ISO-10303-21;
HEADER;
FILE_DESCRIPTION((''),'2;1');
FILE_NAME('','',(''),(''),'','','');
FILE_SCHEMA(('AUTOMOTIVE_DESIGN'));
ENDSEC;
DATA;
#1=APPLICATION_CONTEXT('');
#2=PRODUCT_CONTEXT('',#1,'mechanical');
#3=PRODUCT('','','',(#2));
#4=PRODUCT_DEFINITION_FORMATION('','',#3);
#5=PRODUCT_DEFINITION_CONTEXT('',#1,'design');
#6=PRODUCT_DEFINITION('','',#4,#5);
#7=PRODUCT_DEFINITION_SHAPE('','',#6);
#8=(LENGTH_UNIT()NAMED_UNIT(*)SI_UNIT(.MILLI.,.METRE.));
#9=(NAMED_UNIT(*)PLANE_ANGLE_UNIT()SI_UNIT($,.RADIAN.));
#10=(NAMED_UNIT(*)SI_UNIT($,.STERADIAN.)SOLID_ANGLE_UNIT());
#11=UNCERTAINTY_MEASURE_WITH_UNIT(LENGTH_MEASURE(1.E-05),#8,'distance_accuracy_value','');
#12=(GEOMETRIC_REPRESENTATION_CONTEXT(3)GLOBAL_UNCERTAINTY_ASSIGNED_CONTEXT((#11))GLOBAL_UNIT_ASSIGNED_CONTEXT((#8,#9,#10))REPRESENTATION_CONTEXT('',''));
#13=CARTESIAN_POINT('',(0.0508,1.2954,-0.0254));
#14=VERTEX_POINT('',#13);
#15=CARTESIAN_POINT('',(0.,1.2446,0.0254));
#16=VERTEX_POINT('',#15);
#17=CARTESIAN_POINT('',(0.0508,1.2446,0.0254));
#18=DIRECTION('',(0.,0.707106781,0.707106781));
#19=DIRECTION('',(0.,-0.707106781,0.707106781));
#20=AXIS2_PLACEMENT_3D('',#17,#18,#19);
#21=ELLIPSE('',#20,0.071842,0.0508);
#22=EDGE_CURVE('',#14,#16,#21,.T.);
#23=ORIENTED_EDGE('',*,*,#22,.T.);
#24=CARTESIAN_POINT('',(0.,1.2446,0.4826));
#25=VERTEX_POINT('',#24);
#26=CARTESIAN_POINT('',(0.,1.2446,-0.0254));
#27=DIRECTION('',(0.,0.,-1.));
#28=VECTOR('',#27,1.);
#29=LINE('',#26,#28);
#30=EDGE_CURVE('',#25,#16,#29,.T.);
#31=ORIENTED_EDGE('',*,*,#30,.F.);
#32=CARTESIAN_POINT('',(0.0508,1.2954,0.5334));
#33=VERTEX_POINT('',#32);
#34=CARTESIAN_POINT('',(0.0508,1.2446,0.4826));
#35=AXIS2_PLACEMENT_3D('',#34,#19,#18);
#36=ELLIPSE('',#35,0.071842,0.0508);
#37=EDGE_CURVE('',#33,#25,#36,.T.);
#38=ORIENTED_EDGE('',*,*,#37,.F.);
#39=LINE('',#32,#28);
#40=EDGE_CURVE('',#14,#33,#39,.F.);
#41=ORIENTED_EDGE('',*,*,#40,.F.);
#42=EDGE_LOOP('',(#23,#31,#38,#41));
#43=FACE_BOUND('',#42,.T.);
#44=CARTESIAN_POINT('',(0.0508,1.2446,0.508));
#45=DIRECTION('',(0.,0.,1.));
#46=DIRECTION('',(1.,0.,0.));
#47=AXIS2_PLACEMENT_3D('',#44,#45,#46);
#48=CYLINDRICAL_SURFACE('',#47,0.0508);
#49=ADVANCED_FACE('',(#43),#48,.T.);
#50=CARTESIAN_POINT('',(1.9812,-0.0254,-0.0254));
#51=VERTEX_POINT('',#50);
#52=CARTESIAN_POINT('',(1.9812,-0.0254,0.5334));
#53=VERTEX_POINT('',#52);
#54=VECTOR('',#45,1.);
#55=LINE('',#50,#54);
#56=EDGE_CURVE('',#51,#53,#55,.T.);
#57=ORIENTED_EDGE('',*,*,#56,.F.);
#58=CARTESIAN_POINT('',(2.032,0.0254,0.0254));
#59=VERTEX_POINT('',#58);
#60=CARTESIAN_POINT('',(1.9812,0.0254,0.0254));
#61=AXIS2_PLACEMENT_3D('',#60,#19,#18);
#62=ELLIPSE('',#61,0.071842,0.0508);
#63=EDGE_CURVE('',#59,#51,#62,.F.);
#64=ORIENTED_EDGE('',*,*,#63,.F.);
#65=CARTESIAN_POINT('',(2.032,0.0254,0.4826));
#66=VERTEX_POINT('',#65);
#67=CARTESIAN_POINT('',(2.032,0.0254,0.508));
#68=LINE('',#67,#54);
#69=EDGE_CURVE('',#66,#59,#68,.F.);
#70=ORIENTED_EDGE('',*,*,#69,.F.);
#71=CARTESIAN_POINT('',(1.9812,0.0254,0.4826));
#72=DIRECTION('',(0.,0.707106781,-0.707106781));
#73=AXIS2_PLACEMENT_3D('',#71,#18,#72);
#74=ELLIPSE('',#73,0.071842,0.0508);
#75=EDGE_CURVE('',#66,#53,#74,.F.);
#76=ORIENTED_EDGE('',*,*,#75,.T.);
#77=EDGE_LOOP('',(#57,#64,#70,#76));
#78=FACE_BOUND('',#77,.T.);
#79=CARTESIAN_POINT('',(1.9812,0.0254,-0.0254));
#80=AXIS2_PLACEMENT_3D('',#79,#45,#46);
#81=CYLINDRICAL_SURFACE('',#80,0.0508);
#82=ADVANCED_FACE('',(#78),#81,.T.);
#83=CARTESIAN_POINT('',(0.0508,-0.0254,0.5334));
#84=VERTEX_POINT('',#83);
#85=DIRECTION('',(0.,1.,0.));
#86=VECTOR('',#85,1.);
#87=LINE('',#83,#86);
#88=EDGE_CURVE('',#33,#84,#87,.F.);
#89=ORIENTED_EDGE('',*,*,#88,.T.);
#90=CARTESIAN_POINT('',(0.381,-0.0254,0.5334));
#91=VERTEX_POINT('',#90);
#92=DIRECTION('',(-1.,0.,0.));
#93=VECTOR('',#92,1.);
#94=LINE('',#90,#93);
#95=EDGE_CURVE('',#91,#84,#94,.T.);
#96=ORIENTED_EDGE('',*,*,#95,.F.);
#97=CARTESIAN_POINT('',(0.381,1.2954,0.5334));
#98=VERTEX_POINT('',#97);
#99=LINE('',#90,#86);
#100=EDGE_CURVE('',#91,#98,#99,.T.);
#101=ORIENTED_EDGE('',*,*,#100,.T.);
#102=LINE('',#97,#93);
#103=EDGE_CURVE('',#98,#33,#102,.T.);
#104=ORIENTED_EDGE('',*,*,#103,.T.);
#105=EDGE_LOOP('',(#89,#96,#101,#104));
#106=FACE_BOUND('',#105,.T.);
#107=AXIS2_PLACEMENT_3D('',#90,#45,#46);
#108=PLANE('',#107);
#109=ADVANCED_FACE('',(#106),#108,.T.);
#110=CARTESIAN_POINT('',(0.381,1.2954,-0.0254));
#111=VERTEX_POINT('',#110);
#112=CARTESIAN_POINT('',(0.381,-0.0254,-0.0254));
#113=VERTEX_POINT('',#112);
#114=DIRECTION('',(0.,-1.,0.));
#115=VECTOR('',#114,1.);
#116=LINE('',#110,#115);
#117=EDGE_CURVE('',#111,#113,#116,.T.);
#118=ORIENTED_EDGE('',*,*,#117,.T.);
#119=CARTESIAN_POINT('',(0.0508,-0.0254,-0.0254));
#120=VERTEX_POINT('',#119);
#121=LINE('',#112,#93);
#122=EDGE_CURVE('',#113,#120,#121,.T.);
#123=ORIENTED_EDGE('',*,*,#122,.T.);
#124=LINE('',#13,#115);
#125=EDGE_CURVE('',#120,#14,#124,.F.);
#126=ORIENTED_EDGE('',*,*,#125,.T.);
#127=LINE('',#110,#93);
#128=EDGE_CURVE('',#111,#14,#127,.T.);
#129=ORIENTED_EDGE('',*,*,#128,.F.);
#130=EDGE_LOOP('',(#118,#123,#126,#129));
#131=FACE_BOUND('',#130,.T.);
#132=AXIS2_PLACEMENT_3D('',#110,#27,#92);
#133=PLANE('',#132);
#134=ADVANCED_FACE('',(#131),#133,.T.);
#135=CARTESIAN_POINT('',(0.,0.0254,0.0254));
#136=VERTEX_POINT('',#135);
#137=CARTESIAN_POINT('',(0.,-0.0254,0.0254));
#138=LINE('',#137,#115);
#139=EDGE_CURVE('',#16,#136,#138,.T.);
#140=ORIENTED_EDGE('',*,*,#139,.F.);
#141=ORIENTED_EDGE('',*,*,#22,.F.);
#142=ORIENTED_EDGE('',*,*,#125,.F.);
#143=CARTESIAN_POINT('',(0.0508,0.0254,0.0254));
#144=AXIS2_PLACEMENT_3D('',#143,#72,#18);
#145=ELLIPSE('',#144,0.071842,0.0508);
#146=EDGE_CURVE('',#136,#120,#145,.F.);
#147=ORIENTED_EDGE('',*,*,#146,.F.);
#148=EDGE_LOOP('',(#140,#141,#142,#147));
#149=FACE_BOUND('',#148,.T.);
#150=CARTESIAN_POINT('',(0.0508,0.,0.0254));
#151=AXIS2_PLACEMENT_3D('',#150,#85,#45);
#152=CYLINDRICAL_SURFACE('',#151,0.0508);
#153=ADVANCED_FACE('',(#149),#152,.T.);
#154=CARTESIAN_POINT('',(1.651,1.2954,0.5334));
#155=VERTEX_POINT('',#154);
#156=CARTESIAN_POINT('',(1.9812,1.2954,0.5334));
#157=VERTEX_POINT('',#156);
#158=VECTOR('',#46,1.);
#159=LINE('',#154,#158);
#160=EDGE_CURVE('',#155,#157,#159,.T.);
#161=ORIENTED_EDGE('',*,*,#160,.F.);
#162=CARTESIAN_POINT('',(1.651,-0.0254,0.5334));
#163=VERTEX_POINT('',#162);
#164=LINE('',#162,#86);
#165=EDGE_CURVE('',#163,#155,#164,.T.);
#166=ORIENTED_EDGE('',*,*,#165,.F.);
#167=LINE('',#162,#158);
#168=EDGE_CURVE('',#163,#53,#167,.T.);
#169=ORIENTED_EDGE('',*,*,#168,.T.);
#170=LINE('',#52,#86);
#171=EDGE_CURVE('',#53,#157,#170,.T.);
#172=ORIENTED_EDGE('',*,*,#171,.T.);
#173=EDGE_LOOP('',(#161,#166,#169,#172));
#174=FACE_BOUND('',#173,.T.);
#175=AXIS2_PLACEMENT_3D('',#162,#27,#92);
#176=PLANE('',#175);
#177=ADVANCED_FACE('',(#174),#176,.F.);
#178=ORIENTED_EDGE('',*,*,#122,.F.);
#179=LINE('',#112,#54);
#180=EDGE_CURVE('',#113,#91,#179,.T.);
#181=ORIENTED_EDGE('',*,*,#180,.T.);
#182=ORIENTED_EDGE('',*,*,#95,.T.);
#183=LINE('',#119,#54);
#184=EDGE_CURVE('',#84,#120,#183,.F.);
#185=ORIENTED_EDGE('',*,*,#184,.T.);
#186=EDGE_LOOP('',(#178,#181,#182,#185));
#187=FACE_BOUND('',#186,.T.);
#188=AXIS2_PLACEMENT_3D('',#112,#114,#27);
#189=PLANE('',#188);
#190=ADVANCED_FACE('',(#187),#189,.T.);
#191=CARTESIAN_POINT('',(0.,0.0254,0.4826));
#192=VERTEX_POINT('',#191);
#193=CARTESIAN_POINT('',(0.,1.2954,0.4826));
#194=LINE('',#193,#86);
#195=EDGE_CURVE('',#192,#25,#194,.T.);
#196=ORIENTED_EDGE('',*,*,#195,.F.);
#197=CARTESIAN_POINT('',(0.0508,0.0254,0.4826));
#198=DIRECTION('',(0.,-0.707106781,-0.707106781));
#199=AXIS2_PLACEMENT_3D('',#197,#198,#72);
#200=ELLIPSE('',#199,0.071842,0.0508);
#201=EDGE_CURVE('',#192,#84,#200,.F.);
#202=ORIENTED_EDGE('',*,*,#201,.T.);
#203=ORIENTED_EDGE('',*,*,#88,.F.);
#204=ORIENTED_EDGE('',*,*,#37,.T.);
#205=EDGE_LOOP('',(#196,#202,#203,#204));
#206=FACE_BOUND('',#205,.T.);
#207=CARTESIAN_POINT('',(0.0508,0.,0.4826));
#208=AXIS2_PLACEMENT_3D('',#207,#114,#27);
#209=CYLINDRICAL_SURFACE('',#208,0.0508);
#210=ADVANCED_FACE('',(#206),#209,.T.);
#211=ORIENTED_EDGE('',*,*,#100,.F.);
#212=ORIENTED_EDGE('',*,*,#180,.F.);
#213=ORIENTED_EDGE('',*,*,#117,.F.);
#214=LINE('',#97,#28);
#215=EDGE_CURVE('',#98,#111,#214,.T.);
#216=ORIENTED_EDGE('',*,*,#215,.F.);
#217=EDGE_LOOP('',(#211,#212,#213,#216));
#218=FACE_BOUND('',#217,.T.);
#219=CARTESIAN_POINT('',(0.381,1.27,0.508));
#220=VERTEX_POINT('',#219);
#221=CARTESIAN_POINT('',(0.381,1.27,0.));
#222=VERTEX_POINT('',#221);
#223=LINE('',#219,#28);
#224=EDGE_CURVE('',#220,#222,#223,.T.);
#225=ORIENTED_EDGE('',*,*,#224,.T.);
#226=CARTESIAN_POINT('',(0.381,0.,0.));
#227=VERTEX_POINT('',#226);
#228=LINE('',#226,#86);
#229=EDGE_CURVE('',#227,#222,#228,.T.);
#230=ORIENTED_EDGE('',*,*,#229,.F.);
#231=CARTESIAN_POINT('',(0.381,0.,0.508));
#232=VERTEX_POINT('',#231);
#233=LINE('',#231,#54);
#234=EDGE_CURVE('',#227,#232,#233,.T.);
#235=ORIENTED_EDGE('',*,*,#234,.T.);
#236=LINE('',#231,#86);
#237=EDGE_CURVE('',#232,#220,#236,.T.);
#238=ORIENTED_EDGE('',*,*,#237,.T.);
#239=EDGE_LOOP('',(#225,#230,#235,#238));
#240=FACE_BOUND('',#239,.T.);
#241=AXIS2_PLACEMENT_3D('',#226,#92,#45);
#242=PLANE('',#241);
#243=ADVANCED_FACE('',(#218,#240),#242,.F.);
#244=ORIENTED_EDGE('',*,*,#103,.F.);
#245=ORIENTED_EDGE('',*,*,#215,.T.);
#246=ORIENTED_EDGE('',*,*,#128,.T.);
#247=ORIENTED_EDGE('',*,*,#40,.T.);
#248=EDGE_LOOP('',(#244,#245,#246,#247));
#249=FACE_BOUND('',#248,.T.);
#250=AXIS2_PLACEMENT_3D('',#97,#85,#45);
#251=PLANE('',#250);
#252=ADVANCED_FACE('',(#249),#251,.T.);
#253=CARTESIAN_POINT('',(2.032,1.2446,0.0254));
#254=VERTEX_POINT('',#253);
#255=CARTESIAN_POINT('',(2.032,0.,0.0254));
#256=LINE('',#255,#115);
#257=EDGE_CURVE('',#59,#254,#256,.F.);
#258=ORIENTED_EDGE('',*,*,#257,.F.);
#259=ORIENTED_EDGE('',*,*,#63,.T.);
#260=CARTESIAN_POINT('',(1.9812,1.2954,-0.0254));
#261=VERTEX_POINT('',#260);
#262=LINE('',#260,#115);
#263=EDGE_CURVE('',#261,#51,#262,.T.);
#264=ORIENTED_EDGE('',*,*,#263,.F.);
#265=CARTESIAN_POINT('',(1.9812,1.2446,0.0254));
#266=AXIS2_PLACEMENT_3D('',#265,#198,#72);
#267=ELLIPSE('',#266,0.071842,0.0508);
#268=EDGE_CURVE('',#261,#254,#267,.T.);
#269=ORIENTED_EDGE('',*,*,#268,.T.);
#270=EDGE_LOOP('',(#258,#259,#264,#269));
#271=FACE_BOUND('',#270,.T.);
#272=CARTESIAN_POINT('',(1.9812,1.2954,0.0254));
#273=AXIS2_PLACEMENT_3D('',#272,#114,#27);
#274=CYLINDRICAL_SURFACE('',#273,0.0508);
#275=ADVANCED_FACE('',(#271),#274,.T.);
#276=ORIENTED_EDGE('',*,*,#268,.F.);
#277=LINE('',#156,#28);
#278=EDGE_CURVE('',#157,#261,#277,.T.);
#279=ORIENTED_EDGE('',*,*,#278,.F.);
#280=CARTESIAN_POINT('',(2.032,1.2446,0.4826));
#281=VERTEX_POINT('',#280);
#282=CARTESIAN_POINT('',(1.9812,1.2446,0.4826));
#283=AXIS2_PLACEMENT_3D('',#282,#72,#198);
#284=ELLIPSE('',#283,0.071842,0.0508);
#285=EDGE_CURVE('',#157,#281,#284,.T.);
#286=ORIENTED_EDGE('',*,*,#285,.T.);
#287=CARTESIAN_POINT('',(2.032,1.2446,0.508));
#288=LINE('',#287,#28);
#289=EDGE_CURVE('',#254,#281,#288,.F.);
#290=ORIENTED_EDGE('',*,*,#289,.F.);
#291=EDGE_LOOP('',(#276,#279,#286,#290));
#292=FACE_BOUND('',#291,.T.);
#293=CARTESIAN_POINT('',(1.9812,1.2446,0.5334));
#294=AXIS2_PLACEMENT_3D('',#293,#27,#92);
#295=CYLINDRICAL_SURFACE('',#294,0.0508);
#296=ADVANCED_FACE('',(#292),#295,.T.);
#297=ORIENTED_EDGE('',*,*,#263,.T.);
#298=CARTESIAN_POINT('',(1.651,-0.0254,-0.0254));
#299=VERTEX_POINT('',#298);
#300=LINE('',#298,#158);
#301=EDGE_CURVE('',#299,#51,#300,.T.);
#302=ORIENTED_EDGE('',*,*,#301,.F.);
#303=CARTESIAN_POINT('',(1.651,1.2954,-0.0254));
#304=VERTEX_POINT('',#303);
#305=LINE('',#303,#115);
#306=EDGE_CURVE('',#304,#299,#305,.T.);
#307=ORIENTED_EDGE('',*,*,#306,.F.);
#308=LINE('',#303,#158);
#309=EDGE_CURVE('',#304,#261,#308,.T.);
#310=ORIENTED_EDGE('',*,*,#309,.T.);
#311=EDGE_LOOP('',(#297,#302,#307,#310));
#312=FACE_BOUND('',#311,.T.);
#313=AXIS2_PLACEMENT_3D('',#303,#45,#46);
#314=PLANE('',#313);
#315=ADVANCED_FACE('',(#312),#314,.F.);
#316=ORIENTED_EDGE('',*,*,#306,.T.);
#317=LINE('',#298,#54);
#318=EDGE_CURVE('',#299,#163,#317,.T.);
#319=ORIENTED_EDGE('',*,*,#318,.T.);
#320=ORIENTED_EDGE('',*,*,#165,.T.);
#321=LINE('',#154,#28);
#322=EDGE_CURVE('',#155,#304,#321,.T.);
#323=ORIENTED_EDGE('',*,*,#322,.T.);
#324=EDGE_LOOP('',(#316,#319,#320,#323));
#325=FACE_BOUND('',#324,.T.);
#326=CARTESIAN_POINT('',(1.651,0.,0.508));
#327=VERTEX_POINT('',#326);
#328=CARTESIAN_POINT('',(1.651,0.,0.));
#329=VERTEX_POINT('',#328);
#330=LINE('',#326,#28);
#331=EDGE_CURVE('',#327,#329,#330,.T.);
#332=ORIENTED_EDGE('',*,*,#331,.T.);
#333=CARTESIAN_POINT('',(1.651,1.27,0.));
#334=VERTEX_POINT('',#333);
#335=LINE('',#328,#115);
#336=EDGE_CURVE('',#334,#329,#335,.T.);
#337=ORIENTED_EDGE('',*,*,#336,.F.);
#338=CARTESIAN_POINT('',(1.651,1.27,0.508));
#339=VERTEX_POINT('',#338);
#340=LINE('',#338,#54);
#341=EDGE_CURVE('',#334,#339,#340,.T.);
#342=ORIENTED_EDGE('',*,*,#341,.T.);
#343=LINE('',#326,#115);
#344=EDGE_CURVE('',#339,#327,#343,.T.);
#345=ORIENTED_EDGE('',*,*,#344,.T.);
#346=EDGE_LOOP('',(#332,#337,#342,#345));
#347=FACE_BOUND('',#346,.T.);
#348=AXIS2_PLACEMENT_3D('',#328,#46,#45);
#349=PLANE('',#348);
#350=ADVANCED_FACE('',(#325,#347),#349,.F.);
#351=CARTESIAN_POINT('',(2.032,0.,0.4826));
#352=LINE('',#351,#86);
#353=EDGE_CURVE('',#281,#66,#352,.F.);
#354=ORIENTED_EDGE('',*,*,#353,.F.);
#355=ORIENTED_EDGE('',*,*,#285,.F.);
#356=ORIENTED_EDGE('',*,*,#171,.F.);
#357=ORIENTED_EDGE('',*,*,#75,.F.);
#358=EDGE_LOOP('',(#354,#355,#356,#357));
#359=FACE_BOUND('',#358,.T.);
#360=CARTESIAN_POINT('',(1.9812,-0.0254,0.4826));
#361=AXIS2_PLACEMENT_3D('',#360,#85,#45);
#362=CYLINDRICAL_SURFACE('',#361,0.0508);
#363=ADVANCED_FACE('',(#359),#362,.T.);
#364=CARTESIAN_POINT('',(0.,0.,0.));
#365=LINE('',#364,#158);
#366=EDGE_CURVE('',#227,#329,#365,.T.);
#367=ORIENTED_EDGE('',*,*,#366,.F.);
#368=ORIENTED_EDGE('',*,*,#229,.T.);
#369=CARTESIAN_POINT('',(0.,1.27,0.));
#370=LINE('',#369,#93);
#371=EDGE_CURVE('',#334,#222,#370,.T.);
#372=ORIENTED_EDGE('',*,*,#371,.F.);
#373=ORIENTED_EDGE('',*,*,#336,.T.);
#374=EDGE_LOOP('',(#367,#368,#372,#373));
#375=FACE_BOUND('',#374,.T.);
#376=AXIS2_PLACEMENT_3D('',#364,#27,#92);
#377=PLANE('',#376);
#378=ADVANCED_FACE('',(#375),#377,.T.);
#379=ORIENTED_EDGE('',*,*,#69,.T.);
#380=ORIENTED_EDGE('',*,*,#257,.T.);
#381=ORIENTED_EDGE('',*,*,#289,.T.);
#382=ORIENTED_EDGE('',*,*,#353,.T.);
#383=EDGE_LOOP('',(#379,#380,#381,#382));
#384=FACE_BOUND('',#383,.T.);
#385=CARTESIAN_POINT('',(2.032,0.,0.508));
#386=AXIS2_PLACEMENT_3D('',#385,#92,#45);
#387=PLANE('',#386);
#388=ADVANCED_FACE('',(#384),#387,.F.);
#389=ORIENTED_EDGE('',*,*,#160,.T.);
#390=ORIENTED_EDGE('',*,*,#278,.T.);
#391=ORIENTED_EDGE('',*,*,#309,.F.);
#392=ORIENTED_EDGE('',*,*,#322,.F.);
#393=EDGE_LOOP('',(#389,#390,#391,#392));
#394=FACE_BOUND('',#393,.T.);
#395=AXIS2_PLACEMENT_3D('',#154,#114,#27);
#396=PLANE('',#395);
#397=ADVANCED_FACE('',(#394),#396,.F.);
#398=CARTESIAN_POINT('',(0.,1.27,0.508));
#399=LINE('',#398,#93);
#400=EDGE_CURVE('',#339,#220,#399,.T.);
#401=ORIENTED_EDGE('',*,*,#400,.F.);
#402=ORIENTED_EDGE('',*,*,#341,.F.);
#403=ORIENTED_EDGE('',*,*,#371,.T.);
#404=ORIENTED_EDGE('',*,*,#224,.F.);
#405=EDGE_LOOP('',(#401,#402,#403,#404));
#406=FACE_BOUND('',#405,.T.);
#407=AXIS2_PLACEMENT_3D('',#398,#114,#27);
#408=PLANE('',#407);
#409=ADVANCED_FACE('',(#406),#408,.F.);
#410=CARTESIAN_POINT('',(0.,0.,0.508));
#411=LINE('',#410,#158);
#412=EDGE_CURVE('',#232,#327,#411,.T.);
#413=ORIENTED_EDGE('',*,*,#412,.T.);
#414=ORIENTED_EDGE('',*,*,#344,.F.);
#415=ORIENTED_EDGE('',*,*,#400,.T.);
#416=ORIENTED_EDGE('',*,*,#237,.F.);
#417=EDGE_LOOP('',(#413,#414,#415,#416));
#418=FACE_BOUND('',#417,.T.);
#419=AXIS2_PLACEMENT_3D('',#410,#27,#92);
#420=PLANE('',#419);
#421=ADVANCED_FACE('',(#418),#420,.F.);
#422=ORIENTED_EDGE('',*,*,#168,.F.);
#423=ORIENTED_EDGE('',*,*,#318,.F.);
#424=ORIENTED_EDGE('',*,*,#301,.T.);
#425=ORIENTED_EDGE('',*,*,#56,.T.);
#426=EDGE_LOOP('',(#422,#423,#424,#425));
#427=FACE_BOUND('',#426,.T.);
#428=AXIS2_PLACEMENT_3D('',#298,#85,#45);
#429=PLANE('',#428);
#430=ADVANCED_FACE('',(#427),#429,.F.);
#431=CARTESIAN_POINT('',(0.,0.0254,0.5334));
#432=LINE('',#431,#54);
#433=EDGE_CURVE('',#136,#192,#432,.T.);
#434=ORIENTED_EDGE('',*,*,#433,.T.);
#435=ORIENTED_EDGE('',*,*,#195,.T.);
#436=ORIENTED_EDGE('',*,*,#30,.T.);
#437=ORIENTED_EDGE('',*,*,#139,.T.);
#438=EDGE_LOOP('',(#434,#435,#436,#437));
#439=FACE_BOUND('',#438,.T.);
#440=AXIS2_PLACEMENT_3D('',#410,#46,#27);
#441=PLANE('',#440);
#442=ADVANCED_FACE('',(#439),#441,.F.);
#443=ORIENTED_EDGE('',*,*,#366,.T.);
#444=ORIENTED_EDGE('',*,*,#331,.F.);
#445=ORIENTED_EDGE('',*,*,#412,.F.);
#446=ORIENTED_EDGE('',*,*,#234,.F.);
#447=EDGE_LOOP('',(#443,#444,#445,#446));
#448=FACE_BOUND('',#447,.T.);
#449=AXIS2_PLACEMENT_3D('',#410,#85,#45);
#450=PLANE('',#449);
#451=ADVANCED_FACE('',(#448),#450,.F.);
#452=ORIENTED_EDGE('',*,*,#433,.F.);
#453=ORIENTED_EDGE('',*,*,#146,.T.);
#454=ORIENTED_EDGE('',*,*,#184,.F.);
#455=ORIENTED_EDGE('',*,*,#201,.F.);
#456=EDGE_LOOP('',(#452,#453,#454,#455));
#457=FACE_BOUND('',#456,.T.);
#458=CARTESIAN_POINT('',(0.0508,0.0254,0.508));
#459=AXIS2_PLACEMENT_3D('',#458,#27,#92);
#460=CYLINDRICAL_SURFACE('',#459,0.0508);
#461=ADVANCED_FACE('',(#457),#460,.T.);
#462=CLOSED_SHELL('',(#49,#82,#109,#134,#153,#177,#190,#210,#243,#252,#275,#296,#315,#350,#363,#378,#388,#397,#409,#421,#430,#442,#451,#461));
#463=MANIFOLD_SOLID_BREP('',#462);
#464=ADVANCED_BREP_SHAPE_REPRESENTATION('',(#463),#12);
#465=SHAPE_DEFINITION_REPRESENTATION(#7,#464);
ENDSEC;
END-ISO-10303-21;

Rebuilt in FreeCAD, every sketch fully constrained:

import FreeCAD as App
import Part
import Sketcher
Q = App.Units.Quantity


def edges_at(feature, points):
    """Names of the edges that pass closest to the given points."""
    edges = feature.Shape.Edges
    near = lambda p: min(range(len(edges)), key=lambda i: edges[i].distToShape(Part.Vertex(*p))[0])
    return sorted({f"Edge{near(p) + 1}" for p in points})


def add_polygon(sketch, points):
    """Adds a closed chain of lines whose ends are joined by coincident constraints."""
    first, n = sketch.GeometryCount, len(points)
    for a, b in zip(points, points[1:] + points[:1]):
        sketch.addGeometry(Part.LineSegment(App.Vector(*a, 0), App.Vector(*b, 0)), False)
    for i in range(n):
        sketch.addConstraint(Sketcher.Constraint("Coincident", first + i, 2, first + (i + 1) % n, 1))

doc = App.newDocument("Part")
body = doc.addObject("PartDesign::Body", "Body")

# Sketch on XY plane
sketch1 = body.newObject("Sketcher::SketchObject", "Sketch")
sketch1.AttachmentSupport = (doc.getObject("XY_Plane"), [""])
sketch1.MapMode = "FlatFace"
add_polygon(sketch1, [(0, 1.3), (0, 0), (2, 0), (2, 1.3)])  # lines 0-3
sketch1.addConstraint(Sketcher.Constraint("Vertical", 0))
sketch1.addConstraint(Sketcher.Constraint("Horizontal", 1))
sketch1.addConstraint(Sketcher.Constraint("Vertical", 2))
sketch1.addConstraint(Sketcher.Constraint("Horizontal", 3))
sketch1.addConstraint(Sketcher.Constraint("Coincident", 0, 2, -1, 1))
sketch1.addConstraint(Sketcher.Constraint("DistanceX", 1, 1, 1, 2, Q("0.08 in")))
sketch1.addConstraint(Sketcher.Constraint("DistanceY", 0, 2, 0, 1, Q("0.05 in")))
pad1 = body.newObject("PartDesign::Pad", "Pad")
pad1.Profile = sketch1
pad1.Length = Q("0.02 in")

# Sketch on YZ plane
sketch2 = body.newObject("Sketcher::SketchObject", "Sketch001")
sketch2.AttachmentSupport = (doc.getObject("YZ_Plane"), [""])
sketch2.MapMode = "FlatFace"
add_polygon(sketch2, [(1.3, 0), (0, 0), (0, 0.5), (1.3, 0.5)])  # lines 0-3
sketch2.addConstraint(Sketcher.Constraint("Horizontal", 0))
sketch2.addConstraint(Sketcher.Constraint("Vertical", 1))
sketch2.addConstraint(Sketcher.Constraint("Horizontal", 2))
sketch2.addConstraint(Sketcher.Constraint("Vertical", 3))
sketch2.addConstraint(Sketcher.Constraint("DistanceX", 0, 2, 0, 1, Q("0.052 in")))
sketch2.addConstraint(Sketcher.Constraint("DistanceY", 1, 1, 1, 2, Q("0.022 in")))
sketch2.addConstraint(Sketcher.Constraint("DistanceX", 0, 2, -1, 1, Q("0.001 in")))
sketch2.addConstraint(Sketcher.Constraint("DistanceY", 0, 2, -1, 1, Q("0.001 in")))
pad2 = body.newObject("PartDesign::Pad", "Pad001")
pad2.Profile = sketch2
pad2.Length = Q("0.015 in")
doc.recompute()

datumplane = body.newObject("PartDesign::Plane", "DatumPlane")
datumplane.AttachmentSupport = (doc.getObject("YZ_Plane"), [""])
datumplane.MapMode = "FlatFace"
datumplane.AttachmentOffset = App.Placement(App.Vector(0, 0, 0.04 * 25.4), App.Rotation())
mirrored = body.newObject("PartDesign::Mirrored", "Mirrored")
mirrored.Originals = [pad2]
mirrored.MirrorPlane = (datumplane, [""])
body.Tip = mirrored
doc.recompute()

fillet = body.newObject("PartDesign::Fillet", "Fillet")
fillet.Base = (mirrored, edges_at(mirrored, [
    (0, 1.295, 0.254),
    (0, 0.635, -0.025),
    (0, -0.025, 0.254),
    (0, 0.635, 0.533),
    (2.032, 1.295, 0.254),
    (2.032, 0.635, -0.025),
    (2.032, -0.025, 0.254),
    (2.032, 0.635, 0.533),
]))
fillet.Radius = Q("0.002 in")

doc.recompute()
